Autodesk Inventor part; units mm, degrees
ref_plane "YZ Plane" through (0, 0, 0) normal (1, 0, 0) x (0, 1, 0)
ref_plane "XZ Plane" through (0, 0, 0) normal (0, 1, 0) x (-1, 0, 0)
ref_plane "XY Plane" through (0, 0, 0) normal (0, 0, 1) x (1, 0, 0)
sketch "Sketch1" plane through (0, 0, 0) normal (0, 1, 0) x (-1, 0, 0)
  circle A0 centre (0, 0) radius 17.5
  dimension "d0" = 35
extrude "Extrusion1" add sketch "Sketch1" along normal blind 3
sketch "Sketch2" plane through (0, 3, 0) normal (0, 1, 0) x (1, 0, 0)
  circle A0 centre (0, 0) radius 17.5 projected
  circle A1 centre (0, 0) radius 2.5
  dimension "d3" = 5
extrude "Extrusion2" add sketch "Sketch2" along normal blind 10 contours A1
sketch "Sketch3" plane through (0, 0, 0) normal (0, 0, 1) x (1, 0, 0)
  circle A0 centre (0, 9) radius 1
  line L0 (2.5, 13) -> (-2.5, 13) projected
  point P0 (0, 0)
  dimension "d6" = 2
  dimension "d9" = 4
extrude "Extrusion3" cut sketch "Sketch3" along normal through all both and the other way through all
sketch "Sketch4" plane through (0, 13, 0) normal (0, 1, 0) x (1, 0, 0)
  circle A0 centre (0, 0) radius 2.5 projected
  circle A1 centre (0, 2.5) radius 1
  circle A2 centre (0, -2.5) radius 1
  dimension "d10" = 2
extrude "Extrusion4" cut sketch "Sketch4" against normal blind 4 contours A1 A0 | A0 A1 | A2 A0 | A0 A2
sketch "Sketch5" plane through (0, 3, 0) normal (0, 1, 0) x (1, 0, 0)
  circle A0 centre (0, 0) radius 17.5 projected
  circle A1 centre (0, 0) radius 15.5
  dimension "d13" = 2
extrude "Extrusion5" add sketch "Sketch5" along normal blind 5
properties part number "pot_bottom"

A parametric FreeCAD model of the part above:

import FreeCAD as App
import Part
import Sketcher

V = App.Vector

doc = App.newDocument("Part")
body = doc.addObject("PartDesign::Body", "Body")

sketch1 = doc.addObject("Sketcher::SketchObject", "Sketch")
body.addObject(sketch1)
sketch1.AttachmentSupport = (doc.XZ_Plane, [""])
sketch1.MapMode = "FlatFace"
sketch1.addGeometry(Part.Circle(V(0, 0, 0), V(0, 0, 1), 18), False)
sketch1.addConstraint(Sketcher.Constraint("Coincident", 0, 3, -1, 1))
sketch1.addConstraint(Sketcher.Constraint("Diameter", 0, 35.0))
pad1 = doc.addObject("PartDesign::Pad", "Pad")
body.addObject(pad1)
pad1.Profile = sketch1
pad1.Length = 3
pad1.Reversed = True

sketch2 = doc.addObject("Sketcher::SketchObject", "Sketch001")
body.addObject(sketch2)
sketch2.AttachmentSupport = (doc.XZ_Plane, [""])
sketch2.MapMode = "FlatFace"
sketch2.AttachmentOffset = App.Placement(V(0, 0, -3), App.Rotation())
sketch2.addGeometry(Part.Circle(V(0, 0, 0), V(0, 0, 1), 2.5), False)
sketch2.addConstraint(Sketcher.Constraint("Coincident", 0, 3, -1, 1))
sketch2.addConstraint(Sketcher.Constraint("Diameter", 0, 5.0))
pad2 = doc.addObject("PartDesign::Pad", "Pad001")
body.addObject(pad2)
pad2.Profile = sketch2
pad2.Length = 10
pad2.Reversed = True

sketch3 = doc.addObject("Sketcher::SketchObject", "Sketch002")
body.addObject(sketch3)
sketch3.AttachmentSupport = (doc.XY_Plane, [""])
sketch3.MapMode = "FlatFace"
sketch3.addGeometry(Part.Circle(V(0, 9, 0), V(0, 0, 1), 1), False)
sketch3.addConstraint(Sketcher.Constraint("PointOnObject", 0, 3, -2))
sketch3.addConstraint(Sketcher.Constraint("Diameter", 0, 2.0))
sketch3.addConstraint(Sketcher.Constraint("DistanceY", -1, 1, 0, 3, 9.0))
pocket1 = doc.addObject("PartDesign::Pocket", "Pocket")
body.addObject(pocket1)
pocket1.Profile = sketch3
pocket1.Type = "ThroughAll"
pocket1.Midplane = True

sketch4 = doc.addObject("Sketcher::SketchObject", "Sketch003")
body.addObject(sketch4)
sketch4.AttachmentSupport = (doc.XZ_Plane, [""])
sketch4.MapMode = "FlatFace"
sketch4.AttachmentOffset = App.Placement(V(0, 0, -13), App.Rotation())
sketch4.addGeometry(Part.Circle(V(0, -2.5, 0), V(0, 0, 1), 1), False)
sketch4.addGeometry(Part.Circle(V(0, 2.5, 0), V(0, 0, 1), 1), False)
sketch4.addConstraint(Sketcher.Constraint("Equal", 0, 1))
sketch4.addConstraint(Sketcher.Constraint("Symmetric", 0, 3, 1, 3, -1, 1))
sketch4.addConstraint(Sketcher.Constraint("PointOnObject", 0, 3, -2))
sketch4.addConstraint(Sketcher.Constraint("Diameter", 0, 2.0))
sketch4.addConstraint(Sketcher.Constraint("DistanceY", 0, 3, 1, 3, 5.0))
pocket2 = doc.addObject("PartDesign::Pocket", "Pocket001")
body.addObject(pocket2)
pocket2.Profile = sketch4
pocket2.Length = 4
pocket2.Reversed = True

sketch5 = doc.addObject("Sketcher::SketchObject", "Sketch004")
body.addObject(sketch5)
sketch5.AttachmentSupport = (doc.XZ_Plane, [""])
sketch5.MapMode = "FlatFace"
sketch5.AttachmentOffset = App.Placement(V(0, 0, -3), App.Rotation())
sketch5.addGeometry(Part.Circle(V(0, 0, 0), V(0, 0, 1), 18), False)
sketch5.addGeometry(Part.Circle(V(0, 0, 0), V(0, 0, 1), 16), False)
sketch5.addConstraint(Sketcher.Constraint("Coincident", 0, 3, -1, 1))
sketch5.addConstraint(Sketcher.Constraint("Coincident", 1, 3, -1, 1))
sketch5.addConstraint(Sketcher.Constraint("Diameter", 0, 35.0))
sketch5.addConstraint(Sketcher.Constraint("Diameter", 1, 31.0))
pad3 = doc.addObject("PartDesign::Pad", "Pad002")
body.addObject(pad3)
pad3.Profile = sketch5
pad3.Length = 5
pad3.Reversed = True

doc.recompute()
